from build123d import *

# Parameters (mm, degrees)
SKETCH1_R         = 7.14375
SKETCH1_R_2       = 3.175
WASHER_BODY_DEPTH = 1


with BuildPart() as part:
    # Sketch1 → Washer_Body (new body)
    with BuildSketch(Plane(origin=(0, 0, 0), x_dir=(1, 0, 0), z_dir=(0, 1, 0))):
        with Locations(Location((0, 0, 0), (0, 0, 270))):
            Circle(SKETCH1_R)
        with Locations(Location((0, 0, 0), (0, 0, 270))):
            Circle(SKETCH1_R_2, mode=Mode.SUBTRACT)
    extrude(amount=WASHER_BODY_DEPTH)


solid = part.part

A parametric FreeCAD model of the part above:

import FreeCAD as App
import Part
import Sketcher

V = App.Vector
Q = App.Units.Quantity

doc = App.newDocument("Part")
params = doc.addObject("Spreadsheet::Sheet", "Params")
for row, (alias, value) in enumerate([
    ("sketch1_diameter", "0.25 in"),
    ("sketch1_diameter2", "0.5625 in"),
    ("pad1_length", "1 mm"),
], start=1):
    params.set(f"A{row}", alias)
    params.set(f"B{row}", "=" + value)
    params.setAlias(f"B{row}", alias)

body = doc.addObject("PartDesign::Body", "Body")

sketch1 = body.newObject("Sketcher::SketchObject", "Sketch")
sketch1.AttachmentSupport = (doc.getObject("XZ_Plane"), [""])
sketch1.MapMode = "FlatFace"
sketch1.addGeometry(Part.Circle(V(0, 0, 0), V(0, 0, 1), 7.1), False)
sketch1.addGeometry(Part.Circle(V(0, 0, 0), V(0, 0, 1), 3.2), False)
sketch1.addConstraint(Sketcher.Constraint("Coincident", 0, 3, -1, 1))
sketch1.addConstraint(Sketcher.Constraint("Coincident", 1, 3, -1, 1))
sketch1.addConstraint(Sketcher.Constraint("Diameter", 1, Q("0.25 in")))
sketch1.addConstraint(Sketcher.Constraint("Diameter", 0, Q("0.5625 in")))
sketch1.setExpression("Constraints[2]", "Params.sketch1_diameter")
sketch1.setExpression("Constraints[3]", "Params.sketch1_diameter2")
pad1 = body.newObject("PartDesign::Pad", "Pad")
pad1.Profile = sketch1
pad1.setExpression("Length", "Params.pad1_length")
pad1.Reversed = True

doc.recompute()
